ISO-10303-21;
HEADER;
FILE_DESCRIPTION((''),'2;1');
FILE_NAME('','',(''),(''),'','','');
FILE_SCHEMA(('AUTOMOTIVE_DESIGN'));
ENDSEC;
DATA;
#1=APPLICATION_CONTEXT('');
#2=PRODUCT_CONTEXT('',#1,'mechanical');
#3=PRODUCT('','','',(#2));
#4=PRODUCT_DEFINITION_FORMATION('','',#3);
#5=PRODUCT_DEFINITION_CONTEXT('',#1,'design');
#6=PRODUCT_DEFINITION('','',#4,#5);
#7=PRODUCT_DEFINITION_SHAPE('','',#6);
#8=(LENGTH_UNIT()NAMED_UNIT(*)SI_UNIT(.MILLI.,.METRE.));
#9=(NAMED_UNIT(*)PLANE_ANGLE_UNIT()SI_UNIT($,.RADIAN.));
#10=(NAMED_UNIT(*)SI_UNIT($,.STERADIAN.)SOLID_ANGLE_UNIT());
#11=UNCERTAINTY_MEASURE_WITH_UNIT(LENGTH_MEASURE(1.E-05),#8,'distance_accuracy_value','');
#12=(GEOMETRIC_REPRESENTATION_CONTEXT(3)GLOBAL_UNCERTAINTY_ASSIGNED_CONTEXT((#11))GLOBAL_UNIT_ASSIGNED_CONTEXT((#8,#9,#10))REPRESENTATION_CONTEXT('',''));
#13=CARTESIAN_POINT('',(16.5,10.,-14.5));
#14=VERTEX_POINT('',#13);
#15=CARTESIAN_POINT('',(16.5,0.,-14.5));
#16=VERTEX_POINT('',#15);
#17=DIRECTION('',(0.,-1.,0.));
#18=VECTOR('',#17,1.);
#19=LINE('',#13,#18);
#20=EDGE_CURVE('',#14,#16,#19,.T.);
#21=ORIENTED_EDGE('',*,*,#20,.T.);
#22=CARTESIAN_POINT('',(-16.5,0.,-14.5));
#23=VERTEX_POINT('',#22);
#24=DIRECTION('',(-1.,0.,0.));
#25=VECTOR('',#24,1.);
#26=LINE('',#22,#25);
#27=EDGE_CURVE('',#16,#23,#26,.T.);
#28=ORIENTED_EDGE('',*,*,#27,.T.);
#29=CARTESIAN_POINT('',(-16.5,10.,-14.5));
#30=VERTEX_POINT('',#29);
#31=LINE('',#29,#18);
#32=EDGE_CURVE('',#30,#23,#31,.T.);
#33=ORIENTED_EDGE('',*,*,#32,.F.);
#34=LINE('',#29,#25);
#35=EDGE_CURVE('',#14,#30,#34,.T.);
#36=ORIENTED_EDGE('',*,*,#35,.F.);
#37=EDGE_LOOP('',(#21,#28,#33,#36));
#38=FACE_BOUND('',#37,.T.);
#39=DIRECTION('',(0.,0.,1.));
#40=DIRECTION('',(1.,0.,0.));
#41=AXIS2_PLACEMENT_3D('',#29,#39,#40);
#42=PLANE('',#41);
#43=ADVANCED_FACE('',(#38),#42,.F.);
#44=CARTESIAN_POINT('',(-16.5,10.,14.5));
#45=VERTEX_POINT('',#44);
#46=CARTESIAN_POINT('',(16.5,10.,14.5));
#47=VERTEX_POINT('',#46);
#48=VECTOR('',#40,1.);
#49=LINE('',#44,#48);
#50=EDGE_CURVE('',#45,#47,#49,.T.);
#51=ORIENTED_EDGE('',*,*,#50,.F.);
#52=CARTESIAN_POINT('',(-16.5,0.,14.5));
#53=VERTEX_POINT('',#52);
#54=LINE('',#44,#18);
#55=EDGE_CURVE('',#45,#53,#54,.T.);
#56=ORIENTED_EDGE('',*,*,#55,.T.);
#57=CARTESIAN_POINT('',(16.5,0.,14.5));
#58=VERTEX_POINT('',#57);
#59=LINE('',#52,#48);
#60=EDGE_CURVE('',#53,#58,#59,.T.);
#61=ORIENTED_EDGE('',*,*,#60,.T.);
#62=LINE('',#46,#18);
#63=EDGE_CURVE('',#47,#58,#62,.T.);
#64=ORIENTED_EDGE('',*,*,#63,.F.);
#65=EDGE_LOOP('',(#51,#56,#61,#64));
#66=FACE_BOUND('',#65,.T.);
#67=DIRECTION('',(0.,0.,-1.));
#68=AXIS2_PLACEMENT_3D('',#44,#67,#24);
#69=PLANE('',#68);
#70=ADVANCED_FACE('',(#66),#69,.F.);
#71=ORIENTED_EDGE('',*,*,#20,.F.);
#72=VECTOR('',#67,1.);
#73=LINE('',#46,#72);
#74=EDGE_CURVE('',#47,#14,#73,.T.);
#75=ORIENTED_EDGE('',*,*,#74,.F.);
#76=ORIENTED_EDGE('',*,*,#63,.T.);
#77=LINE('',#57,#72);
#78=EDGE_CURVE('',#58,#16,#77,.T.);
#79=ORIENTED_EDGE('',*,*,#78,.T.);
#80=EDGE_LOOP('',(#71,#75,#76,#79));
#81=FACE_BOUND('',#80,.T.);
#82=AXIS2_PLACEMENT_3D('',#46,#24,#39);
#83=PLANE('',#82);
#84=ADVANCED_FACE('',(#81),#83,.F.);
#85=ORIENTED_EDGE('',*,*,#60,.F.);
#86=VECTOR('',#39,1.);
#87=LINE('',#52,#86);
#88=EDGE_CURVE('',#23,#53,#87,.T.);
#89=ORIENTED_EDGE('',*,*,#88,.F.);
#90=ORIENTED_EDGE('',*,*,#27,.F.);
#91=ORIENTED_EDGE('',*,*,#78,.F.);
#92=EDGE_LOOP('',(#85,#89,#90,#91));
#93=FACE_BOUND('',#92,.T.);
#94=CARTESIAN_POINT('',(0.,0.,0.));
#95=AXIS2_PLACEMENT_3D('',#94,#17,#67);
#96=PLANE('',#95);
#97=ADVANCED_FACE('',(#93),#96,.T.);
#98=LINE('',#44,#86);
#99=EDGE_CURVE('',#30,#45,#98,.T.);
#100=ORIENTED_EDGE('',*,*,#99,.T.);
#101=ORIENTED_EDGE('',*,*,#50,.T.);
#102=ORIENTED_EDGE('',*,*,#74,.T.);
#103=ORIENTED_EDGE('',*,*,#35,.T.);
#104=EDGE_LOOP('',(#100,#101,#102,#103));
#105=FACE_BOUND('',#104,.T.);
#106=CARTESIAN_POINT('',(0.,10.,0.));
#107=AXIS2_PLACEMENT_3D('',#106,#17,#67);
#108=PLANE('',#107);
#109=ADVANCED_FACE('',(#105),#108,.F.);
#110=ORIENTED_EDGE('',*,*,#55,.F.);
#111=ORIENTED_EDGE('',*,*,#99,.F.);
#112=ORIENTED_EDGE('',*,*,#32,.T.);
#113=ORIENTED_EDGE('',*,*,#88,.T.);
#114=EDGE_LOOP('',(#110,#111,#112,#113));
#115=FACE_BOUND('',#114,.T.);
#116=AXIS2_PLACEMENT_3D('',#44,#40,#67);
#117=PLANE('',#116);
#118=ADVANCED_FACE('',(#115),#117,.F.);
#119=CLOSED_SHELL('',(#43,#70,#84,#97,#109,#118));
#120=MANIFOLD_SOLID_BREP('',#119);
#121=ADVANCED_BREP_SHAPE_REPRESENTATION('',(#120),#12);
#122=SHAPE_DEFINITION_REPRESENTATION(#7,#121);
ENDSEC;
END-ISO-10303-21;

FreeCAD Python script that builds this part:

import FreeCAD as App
import Part
import Sketcher

V = App.Vector
Q = App.Units.Quantity


def add_polygon(sketch, points):
    """Adds a closed chain of lines whose ends are joined by coincident constraints."""
    first, n = sketch.GeometryCount, len(points)
    for a, b in zip(points, points[1:] + points[:1]):
        sketch.addGeometry(Part.LineSegment(App.Vector(*a, 0), App.Vector(*b, 0)), False)
    for i in range(n):
        sketch.addConstraint(Sketcher.Constraint("Coincident", first + i, 2, first + (i + 1) % n, 1))

doc = App.newDocument("Part")
body = doc.addObject("PartDesign::Body", "Body")

sketch1 = body.newObject("Sketcher::SketchObject", "Sketch")
sketch1.AttachmentSupport = (doc.getObject("XZ_Plane"), [""])
sketch1.MapMode = "FlatFace"
add_polygon(sketch1, [(-16.5, -14.5), (-16.5, 14.5), (16.5, 14.5), (16.5, -14.5)])
sketch1.addConstraint([
    Sketcher.Constraint("Vertical", 0),
    Sketcher.Constraint("Horizontal", 1),
    Sketcher.Constraint("Vertical", 2),
    Sketcher.Constraint("Horizontal", 3),
    Sketcher.Constraint("Symmetric", 0, 2, 2, 2, -1, 1),
    Sketcher.Constraint("DistanceX", 1, 1, 1, 2, Q("33 mm")),
    Sketcher.Constraint("DistanceY", 0, 1, 0, 2, Q("29 mm")),
])
pad1 = body.newObject("PartDesign::Pad", "Pad")
pad1.Profile = sketch1
pad1.Length = 10
pad1.Reversed = True

doc.recompute()
